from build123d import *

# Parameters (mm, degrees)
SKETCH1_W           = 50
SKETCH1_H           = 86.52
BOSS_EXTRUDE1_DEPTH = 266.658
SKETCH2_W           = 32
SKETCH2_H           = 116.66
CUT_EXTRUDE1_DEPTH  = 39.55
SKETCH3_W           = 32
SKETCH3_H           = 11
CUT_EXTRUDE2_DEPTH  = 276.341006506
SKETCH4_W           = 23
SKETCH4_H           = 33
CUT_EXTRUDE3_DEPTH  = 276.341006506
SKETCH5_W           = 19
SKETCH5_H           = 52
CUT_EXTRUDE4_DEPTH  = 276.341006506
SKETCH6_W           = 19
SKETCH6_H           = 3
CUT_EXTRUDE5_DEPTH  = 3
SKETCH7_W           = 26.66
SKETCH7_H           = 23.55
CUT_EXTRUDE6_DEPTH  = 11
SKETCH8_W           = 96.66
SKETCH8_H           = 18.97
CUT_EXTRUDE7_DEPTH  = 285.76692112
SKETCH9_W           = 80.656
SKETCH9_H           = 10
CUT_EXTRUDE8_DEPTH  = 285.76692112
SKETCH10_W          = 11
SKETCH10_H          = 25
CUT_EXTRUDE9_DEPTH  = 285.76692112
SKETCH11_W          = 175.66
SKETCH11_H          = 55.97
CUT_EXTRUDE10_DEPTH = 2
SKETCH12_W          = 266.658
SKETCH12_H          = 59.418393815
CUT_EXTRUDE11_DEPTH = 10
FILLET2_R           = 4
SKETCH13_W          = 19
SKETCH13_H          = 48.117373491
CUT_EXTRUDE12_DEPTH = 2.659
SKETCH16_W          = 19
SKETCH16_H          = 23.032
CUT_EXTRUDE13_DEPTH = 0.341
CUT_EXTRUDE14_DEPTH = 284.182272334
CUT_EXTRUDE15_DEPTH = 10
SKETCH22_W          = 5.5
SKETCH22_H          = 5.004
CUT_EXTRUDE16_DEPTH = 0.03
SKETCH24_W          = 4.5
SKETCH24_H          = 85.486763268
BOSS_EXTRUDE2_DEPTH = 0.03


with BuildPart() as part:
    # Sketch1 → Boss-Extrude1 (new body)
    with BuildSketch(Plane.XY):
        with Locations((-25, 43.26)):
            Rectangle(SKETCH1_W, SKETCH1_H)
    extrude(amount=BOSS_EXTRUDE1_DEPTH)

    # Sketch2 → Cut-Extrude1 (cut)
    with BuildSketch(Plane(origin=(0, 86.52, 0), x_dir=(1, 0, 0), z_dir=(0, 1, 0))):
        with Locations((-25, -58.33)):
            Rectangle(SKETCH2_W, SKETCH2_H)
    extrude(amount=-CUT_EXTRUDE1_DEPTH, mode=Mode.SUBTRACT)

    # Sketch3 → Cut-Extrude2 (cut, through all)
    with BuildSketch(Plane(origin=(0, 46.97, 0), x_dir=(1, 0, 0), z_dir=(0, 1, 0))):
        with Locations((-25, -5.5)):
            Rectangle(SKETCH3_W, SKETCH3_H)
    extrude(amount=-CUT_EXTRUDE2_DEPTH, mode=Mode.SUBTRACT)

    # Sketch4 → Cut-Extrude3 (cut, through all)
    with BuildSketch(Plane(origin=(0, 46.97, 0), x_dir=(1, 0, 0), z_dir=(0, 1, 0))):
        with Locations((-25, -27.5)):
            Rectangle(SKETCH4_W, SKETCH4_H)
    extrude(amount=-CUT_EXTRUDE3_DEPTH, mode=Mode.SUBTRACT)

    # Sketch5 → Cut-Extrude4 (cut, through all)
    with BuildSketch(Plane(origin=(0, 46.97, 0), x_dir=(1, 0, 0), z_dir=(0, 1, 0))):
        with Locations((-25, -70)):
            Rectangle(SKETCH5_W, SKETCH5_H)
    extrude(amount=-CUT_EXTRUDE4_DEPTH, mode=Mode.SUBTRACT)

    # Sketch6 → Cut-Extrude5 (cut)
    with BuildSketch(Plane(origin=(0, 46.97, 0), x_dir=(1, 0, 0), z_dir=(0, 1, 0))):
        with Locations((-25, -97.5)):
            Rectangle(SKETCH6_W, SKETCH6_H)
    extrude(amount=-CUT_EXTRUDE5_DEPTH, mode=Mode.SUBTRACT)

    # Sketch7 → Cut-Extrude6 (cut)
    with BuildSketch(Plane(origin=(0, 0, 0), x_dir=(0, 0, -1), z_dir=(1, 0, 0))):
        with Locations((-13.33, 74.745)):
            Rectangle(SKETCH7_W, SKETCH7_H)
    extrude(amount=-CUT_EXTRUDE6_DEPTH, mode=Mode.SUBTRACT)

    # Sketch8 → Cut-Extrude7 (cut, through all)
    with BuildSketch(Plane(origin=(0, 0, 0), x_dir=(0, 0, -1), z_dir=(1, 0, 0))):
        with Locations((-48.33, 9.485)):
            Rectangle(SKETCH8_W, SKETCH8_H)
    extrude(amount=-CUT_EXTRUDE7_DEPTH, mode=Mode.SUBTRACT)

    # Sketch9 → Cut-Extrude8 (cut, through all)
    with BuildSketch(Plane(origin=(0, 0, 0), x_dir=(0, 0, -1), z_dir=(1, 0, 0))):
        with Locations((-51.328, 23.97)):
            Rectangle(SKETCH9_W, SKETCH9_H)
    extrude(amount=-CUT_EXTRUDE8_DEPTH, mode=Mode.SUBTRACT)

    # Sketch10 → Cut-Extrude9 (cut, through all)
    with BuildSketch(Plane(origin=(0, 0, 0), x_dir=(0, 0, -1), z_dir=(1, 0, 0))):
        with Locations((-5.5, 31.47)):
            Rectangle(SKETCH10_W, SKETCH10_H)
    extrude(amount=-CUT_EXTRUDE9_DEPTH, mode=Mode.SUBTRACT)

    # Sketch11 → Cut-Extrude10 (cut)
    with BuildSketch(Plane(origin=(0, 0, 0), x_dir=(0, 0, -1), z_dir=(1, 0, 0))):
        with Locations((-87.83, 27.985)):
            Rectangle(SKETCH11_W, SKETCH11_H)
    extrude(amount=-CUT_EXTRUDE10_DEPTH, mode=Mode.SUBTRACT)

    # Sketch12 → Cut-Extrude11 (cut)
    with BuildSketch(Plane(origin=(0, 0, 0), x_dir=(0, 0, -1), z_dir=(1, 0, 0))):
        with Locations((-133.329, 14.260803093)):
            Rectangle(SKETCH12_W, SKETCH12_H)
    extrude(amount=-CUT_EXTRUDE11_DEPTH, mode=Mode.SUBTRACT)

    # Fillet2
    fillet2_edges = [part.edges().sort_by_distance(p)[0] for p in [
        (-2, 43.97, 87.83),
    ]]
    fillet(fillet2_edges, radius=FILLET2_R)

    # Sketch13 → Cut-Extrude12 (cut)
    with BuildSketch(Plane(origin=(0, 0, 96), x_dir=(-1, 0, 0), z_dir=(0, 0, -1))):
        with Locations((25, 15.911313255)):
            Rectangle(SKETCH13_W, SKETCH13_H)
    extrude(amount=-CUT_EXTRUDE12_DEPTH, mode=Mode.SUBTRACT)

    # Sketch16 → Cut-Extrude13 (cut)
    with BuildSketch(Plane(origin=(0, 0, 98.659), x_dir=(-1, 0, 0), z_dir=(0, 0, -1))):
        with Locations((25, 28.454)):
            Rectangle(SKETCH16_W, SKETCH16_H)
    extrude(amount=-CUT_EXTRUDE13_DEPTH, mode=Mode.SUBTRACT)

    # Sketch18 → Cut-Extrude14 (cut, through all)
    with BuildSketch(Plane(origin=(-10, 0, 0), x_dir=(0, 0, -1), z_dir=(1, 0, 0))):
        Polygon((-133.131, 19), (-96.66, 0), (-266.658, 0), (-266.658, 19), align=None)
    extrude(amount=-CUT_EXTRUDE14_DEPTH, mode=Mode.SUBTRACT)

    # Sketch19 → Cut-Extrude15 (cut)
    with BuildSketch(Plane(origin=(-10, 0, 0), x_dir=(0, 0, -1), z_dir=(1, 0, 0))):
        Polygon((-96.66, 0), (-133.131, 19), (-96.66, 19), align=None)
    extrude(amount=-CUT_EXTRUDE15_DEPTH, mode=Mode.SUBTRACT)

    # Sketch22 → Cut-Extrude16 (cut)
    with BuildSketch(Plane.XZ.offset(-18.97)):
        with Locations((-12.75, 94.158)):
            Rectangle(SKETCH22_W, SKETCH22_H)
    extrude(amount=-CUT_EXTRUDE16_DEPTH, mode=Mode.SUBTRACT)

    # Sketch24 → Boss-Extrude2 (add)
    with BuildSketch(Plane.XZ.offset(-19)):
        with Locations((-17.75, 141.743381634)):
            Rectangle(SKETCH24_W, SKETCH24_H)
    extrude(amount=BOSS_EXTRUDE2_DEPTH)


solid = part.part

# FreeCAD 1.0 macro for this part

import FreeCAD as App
import Part
import Sketcher
from FreeCAD import Vector


def edges_at(feature, points):
    """Names of the edges that pass closest to the given points."""
    edges = feature.Shape.Edges
    near = lambda p: min(range(len(edges)), key=lambda i: edges[i].distToShape(Part.Vertex(*p))[0])
    return sorted({f"Edge{near(p) + 1}" for p in points})


def add_polygon(sketch, points):
    """Adds a closed chain of lines whose ends are joined by coincident constraints."""
    first, n = sketch.GeometryCount, len(points)
    for a, b in zip(points, points[1:] + points[:1]):
        sketch.addGeometry(Part.LineSegment(App.Vector(*a, 0), App.Vector(*b, 0)), False)
    for i in range(n):
        sketch.addConstraint(Sketcher.Constraint("Coincident", first + i, 2, first + (i + 1) % n, 1))

doc = App.newDocument("Part")
body = doc.addObject("PartDesign::Body", "Body")

# Sketch on XY plane
sketch1 = body.newObject("Sketcher::SketchObject", "Sketch")
sketch1.AttachmentSupport = (doc.getObject("XY_Plane"), [""])
sketch1.MapMode = "FlatFace"
add_polygon(sketch1, [(-50, 87), (-50, 0), (0, 0), (0, 87)])  # lines 0-3
sketch1.addConstraint(Sketcher.Constraint("Vertical", 0))
sketch1.addConstraint(Sketcher.Constraint("Horizontal", 1))
sketch1.addConstraint(Sketcher.Constraint("Vertical", 2))
sketch1.addConstraint(Sketcher.Constraint("Horizontal", 3))
sketch1.addConstraint(Sketcher.Constraint("Coincident", 1, 2, -1, 1))
sketch1.addConstraint(Sketcher.Constraint("DistanceX", 1, 1, 1, 2, 50.0))
sketch1.addConstraint(Sketcher.Constraint("DistanceY", 0, 2, 0, 1, 86.52))
pad1 = body.newObject("PartDesign::Pad", "Pad")
pad1.Profile = sketch1
pad1.Length = 266.658

# Sketch on XZ plane
sketch2 = body.newObject("Sketcher::SketchObject", "Sketch001")
sketch2.AttachmentSupport = (doc.getObject("XZ_Plane"), [""])
sketch2.MapMode = "FlatFace"
sketch2.AttachmentOffset = App.Placement(Vector(0, 0, -86.52), App.Rotation())
add_polygon(sketch2, [(-41, 0), (-41, 117), (-9, 117), (-9, 0)])  # lines 0-3
sketch2.addConstraint(Sketcher.Constraint("Vertical", 0))
sketch2.addConstraint(Sketcher.Constraint("Horizontal", 1))
sketch2.addConstraint(Sketcher.Constraint("Vertical", 2))
sketch2.addConstraint(Sketcher.Constraint("Horizontal", 3))
sketch2.addConstraint(Sketcher.Constraint("PointOnObject", 2, 2, -1))
sketch2.addConstraint(Sketcher.Constraint("DistanceX", 1, 1, 1, 2, 32.0))
sketch2.addConstraint(Sketcher.Constraint("DistanceX", 0, 2, -1, 1, 41.0))
sketch2.addConstraint(Sketcher.Constraint("DistanceY", 0, 1, 0, 2, 116.66))
pocket1 = body.newObject("PartDesign::Pocket", "Pocket")
pocket1.Profile = sketch2
pocket1.Length = 39.55
pocket1.Reversed = True

# Sketch on XZ plane
sketch3 = body.newObject("Sketcher::SketchObject", "Sketch002")
sketch3.AttachmentSupport = (doc.getObject("XZ_Plane"), [""])
sketch3.MapMode = "FlatFace"
sketch3.AttachmentOffset = App.Placement(Vector(0, 0, -46.97), App.Rotation())
add_polygon(sketch3, [(-41, 0), (-41, 11), (-9, 11), (-9, 0)])  # lines 0-3
sketch3.addConstraint(Sketcher.Constraint("Vertical", 0))
sketch3.addConstraint(Sketcher.Constraint("Horizontal", 1))
sketch3.addConstraint(Sketcher.Constraint("Vertical", 2))
sketch3.addConstraint(Sketcher.Constraint("Horizontal", 3))
sketch3.addConstraint(Sketcher.Constraint("PointOnObject", 2, 2, -1))
sketch3.addConstraint(Sketcher.Constraint("DistanceX", 1, 1, 1, 2, 32.0))
sketch3.addConstraint(Sketcher.Constraint("DistanceY", 0, 1, 0, 2, 11.0))
sketch3.addConstraint(Sketcher.Constraint("DistanceX", 0, 2, -1, 1, 41.0))
pocket2 = body.newObject("PartDesign::Pocket", "Pocket001")
pocket2.Profile = sketch3
pocket2.Type = "ThroughAll"
pocket2.Reversed = True

# Sketch on XZ plane
sketch4 = body.newObject("Sketcher::SketchObject", "Sketch003")
sketch4.AttachmentSupport = (doc.getObject("XZ_Plane"), [""])
sketch4.MapMode = "FlatFace"
sketch4.AttachmentOffset = App.Placement(Vector(0, 0, -46.97), App.Rotation())
add_polygon(sketch4, [(-36, 11), (-36, 44), (-14, 44), (-14, 11)])  # lines 0-3
sketch4.addConstraint(Sketcher.Constraint("Vertical", 0))
sketch4.addConstraint(Sketcher.Constraint("Horizontal", 1))
sketch4.addConstraint(Sketcher.Constraint("Vertical", 2))
sketch4.addConstraint(Sketcher.Constraint("Horizontal", 3))
sketch4.addConstraint(Sketcher.Constraint("DistanceX", 1, 1, 1, 2, 23.0))
sketch4.addConstraint(Sketcher.Constraint("DistanceY", 0, 1, 0, 2, 33.0))
sketch4.addConstraint(Sketcher.Constraint("DistanceY", -1, 1, 0, 2, 44.0))
sketch4.addConstraint(Sketcher.Constraint("DistanceX", 0, 2, -1, 1, 36.5))
pocket3 = body.newObject("PartDesign::Pocket", "Pocket002")
pocket3.Profile = sketch4
pocket3.Type = "ThroughAll"
pocket3.Reversed = True

# Sketch on XZ plane
sketch5 = body.newObject("Sketcher::SketchObject", "Sketch004")
sketch5.AttachmentSupport = (doc.getObject("XZ_Plane"), [""])
sketch5.MapMode = "FlatFace"
sketch5.AttachmentOffset = App.Placement(Vector(0, 0, -46.97), App.Rotation())
add_polygon(sketch5, [(-34, 44), (-34, 96), (-16, 96), (-16, 44)])  # lines 0-3
sketch5.addConstraint(Sketcher.Constraint("Vertical", 0))
sketch5.addConstraint(Sketcher.Constraint("Horizontal", 1))
sketch5.addConstraint(Sketcher.Constraint("Vertical", 2))
sketch5.addConstraint(Sketcher.Constraint("Horizontal", 3))
sketch5.addConstraint(Sketcher.Constraint("DistanceX", 1, 1, 1, 2, 19.0))
sketch5.addConstraint(Sketcher.Constraint("DistanceY", 0, 1, 0, 2, 52.0))
sketch5.addConstraint(Sketcher.Constraint("DistanceY", -1, 1, 0, 2, 96.0))
sketch5.addConstraint(Sketcher.Constraint("DistanceX", 0, 2, -1, 1, 34.5))
pocket4 = body.newObject("PartDesign::Pocket", "Pocket003")
pocket4.Profile = sketch5
pocket4.Type = "ThroughAll"
pocket4.Reversed = True

# Sketch on XZ plane
sketch6 = body.newObject("Sketcher::SketchObject", "Sketch005")
sketch6.AttachmentSupport = (doc.getObject("XZ_Plane"), [""])
sketch6.MapMode = "FlatFace"
sketch6.AttachmentOffset = App.Placement(Vector(0, 0, -46.97), App.Rotation())
add_polygon(sketch6, [(-34.5, 96), (-34.5, 99), (-15.5, 99), (-15.5, 96)])  # lines 0-3
sketch6.addConstraint(Sketcher.Constraint("Vertical", 0))
sketch6.addConstraint(Sketcher.Constraint("Horizontal", 1))
sketch6.addConstraint(Sketcher.Constraint("Vertical", 2))
sketch6.addConstraint(Sketcher.Constraint("Horizontal", 3))
sketch6.addConstraint(Sketcher.Constraint("DistanceX", 1, 1, 1, 2, 19.0))
sketch6.addConstraint(Sketcher.Constraint("DistanceY", 0, 1, 0, 2, 3.0))
sketch6.addConstraint(Sketcher.Constraint("DistanceY", -1, 1, 0, 2, 99.0))
sketch6.addConstraint(Sketcher.Constraint("DistanceX", 0, 2, -1, 1, 34.5))
pocket5 = body.newObject("PartDesign::Pocket", "Pocket004")
pocket5.Profile = sketch6
pocket5.Length = 3
pocket5.Reversed = True

# Sketch on YZ plane
sketch7 = body.newObject("Sketcher::SketchObject", "Sketch006")
sketch7.AttachmentSupport = (doc.getObject("YZ_Plane"), [""])
sketch7.MapMode = "FlatFace"
add_polygon(sketch7, [(87, 27), (63, 27), (63, 0), (87, 0)])  # lines 0-3
sketch7.addConstraint(Sketcher.Constraint("Horizontal", 0))
sketch7.addConstraint(Sketcher.Constraint("Vertical", 1))
sketch7.addConstraint(Sketcher.Constraint("Horizontal", 2))
sketch7.addConstraint(Sketcher.Constraint("Vertical", 3))
sketch7.addConstraint(Sketcher.Constraint("PointOnObject", 1, 2, -1))
sketch7.addConstraint(Sketcher.Constraint("DistanceX", 0, 2, 0, 1, 23.55))
sketch7.addConstraint(Sketcher.Constraint("DistanceY", 1, 2, 1, 1, 26.66))
sketch7.addConstraint(Sketcher.Constraint("DistanceX", -1, 1, 0, 2, 62.97))
pocket6 = body.newObject("PartDesign::Pocket", "Pocket005")
pocket6.Profile = sketch7
pocket6.Length = 11

# Sketch on YZ plane
sketch8 = body.newObject("Sketcher::SketchObject", "Sketch007")
sketch8.AttachmentSupport = (doc.getObject("YZ_Plane"), [""])
sketch8.MapMode = "FlatFace"
add_polygon(sketch8, [(19, 97), (0, 97), (0, 0), (19, 0)])  # lines 0-3
sketch8.addConstraint(Sketcher.Constraint("Horizontal", 0))
sketch8.addConstraint(Sketcher.Constraint("Vertical", 1))
sketch8.addConstraint(Sketcher.Constraint("Horizontal", 2))
sketch8.addConstraint(Sketcher.Constraint("Vertical", 3))
sketch8.addConstraint(Sketcher.Constraint("Coincident", 1, 2, -1, 1))
sketch8.addConstraint(Sketcher.Constraint("DistanceX", 0, 2, 0, 1, 18.97))
sketch8.addConstraint(Sketcher.Constraint("DistanceY", 1, 2, 1, 1, 96.66))
pocket7 = body.newObject("PartDesign::Pocket", "Pocket006")
pocket7.Profile = sketch8
pocket7.Type = "ThroughAll"

# Sketch on YZ plane
sketch9 = body.newObject("Sketcher::SketchObject", "Sketch008")
sketch9.AttachmentSupport = (doc.getObject("YZ_Plane"), [""])
sketch9.MapMode = "FlatFace"
add_polygon(sketch9, [(29, 92), (19, 92), (19, 11), (29, 11)])  # lines 0-3
sketch9.addConstraint(Sketcher.Constraint("Horizontal", 0))
sketch9.addConstraint(Sketcher.Constraint("Vertical", 1))
sketch9.addConstraint(Sketcher.Constraint("Horizontal", 2))
sketch9.addConstraint(Sketcher.Constraint("Vertical", 3))
sketch9.addConstraint(Sketcher.Constraint("DistanceX", 0, 2, 0, 1, 10.0))
sketch9.addConstraint(Sketcher.Constraint("DistanceY", -1, 1, 1, 2, 11.0))
sketch9.addConstraint(Sketcher.Constraint("DistanceY", 1, 2, 1, 1, 80.656))
sketch9.addConstraint(Sketcher.Constraint("DistanceX", -1, 1, 0, 2, 18.97))
pocket8 = body.newObject("PartDesign::Pocket", "Pocket007")
pocket8.Profile = sketch9
pocket8.Type = "ThroughAll"

# Sketch on YZ plane
sketch10 = body.newObject("Sketcher::SketchObject", "Sketch009")
sketch10.AttachmentSupport = (doc.getObject("YZ_Plane"), [""])
sketch10.MapMode = "FlatFace"
add_polygon(sketch10, [(44, 11), (19, 11), (19, 0), (44, 0)])  # lines 0-3
sketch10.addConstraint(Sketcher.Constraint("Horizontal", 0))
sketch10.addConstraint(Sketcher.Constraint("Vertical", 1))
sketch10.addConstraint(Sketcher.Constraint("Horizontal", 2))
sketch10.addConstraint(Sketcher.Constraint("Vertical", 3))
sketch10.addConstraint(Sketcher.Constraint("PointOnObject", 1, 2, -1))
sketch10.addConstraint(Sketcher.Constraint("DistanceX", 0, 2, 0, 1, 25.0))
sketch10.addConstraint(Sketcher.Constraint("DistanceY", 1, 2, 1, 1, 11.0))
sketch10.addConstraint(Sketcher.Constraint("DistanceX", -1, 1, 0, 2, 18.97))
pocket9 = body.newObject("PartDesign::Pocket", "Pocket008")
pocket9.Profile = sketch10
pocket9.Type = "ThroughAll"

# Sketch on YZ plane
sketch11 = body.newObject("Sketcher::SketchObject", "Sketch010")
sketch11.AttachmentSupport = (doc.getObject("YZ_Plane"), [""])
sketch11.MapMode = "FlatFace"
add_polygon(sketch11, [(56, 176), (0, 176), (0, 0), (56, 0)])  # lines 0-3
sketch11.addConstraint(Sketcher.Constraint("Horizontal", 0))
sketch11.addConstraint(Sketcher.Constraint("Vertical", 1))
sketch11.addConstraint(Sketcher.Constraint("Horizontal", 2))
sketch11.addConstraint(Sketcher.Constraint("Vertical", 3))
sketch11.addConstraint(Sketcher.Constraint("Coincident", 1, 2, -1, 1))
sketch11.addConstraint(Sketcher.Constraint("DistanceX", 0, 2, 0, 1, 55.97))
sketch11.addConstraint(Sketcher.Constraint("DistanceY", 1, 2, 1, 1, 175.66))
pocket10 = body.newObject("PartDesign::Pocket", "Pocket009")
pocket10.Profile = sketch11
pocket10.Length = 2

# Sketch on YZ plane
sketch12 = body.newObject("Sketcher::SketchObject", "Sketch011")
sketch12.AttachmentSupport = (doc.getObject("YZ_Plane"), [""])
sketch12.MapMode = "FlatFace"
add_polygon(sketch12, [(44, 267), (-15, 267), (-15, 0), (44, 0)])  # lines 0-3
sketch12.addConstraint(Sketcher.Constraint("Horizontal", 0))
sketch12.addConstraint(Sketcher.Constraint("Vertical", 1))
sketch12.addConstraint(Sketcher.Constraint("Horizontal", 2))
sketch12.addConstraint(Sketcher.Constraint("Vertical", 3))
sketch12.addConstraint(Sketcher.Constraint("PointOnObject", 1, 2, -1))
sketch12.addConstraint(Sketcher.Constraint("DistanceY", 1, 2, 1, 1, 266.658))
sketch12.addConstraint(Sketcher.Constraint("DistanceX", -1, 1, 2, 2, 43.97))
sketch12.addConstraint(Sketcher.Constraint("DistanceX", 0, 2, 0, 1, 59.418394))
pocket11 = body.newObject("PartDesign::Pocket", "Pocket010")
pocket11.Profile = sketch12
pocket11.Length = 10
doc.recompute()

fillet = body.newObject("PartDesign::Fillet", "Fillet")
fillet.Base = (pocket11, edges_at(pocket11, [(-2, 43.97, 93.33)]))
fillet.Radius = 4

# Sketch on XY plane
sketch13 = body.newObject("Sketcher::SketchObject", "Sketch012")
sketch13.AttachmentSupport = (doc.getObject("XY_Plane"), [""])
sketch13.MapMode = "FlatFace"
sketch13.AttachmentOffset = App.Placement(Vector(0, 0, 96), App.Rotation())
add_polygon(sketch13, [(-16, 40), (-16, -8), (-34, -8), (-34, 40)])  # lines 0-3
sketch13.addConstraint(Sketcher.Constraint("Vertical", 0))
sketch13.addConstraint(Sketcher.Constraint("Horizontal", 1))
sketch13.addConstraint(Sketcher.Constraint("Vertical", 2))
sketch13.addConstraint(Sketcher.Constraint("Horizontal", 3))
sketch13.addConstraint(Sketcher.Constraint("DistanceX", 1, 2, 1, 1, 19.0))
sketch13.addConstraint(Sketcher.Constraint("DistanceX", 0, 2, -1, 1, 15.5))
sketch13.addConstraint(Sketcher.Constraint("DistanceY", -1, 1, 2, 2, 39.97))
sketch13.addConstraint(Sketcher.Constraint("DistanceY", 0, 2, 0, 1, 48.117373))
pocket12 = body.newObject("PartDesign::Pocket", "Pocket011")
pocket12.Profile = sketch13
pocket12.Length = 2.659
pocket12.Reversed = True

# Sketch on XY plane
sketch14 = body.newObject("Sketcher::SketchObject", "Sketch013")
sketch14.AttachmentSupport = (doc.getObject("XY_Plane"), [""])
sketch14.MapMode = "FlatFace"
sketch14.AttachmentOffset = App.Placement(Vector(0, 0, 98.659), App.Rotation())
add_polygon(sketch14, [(-16, 40), (-16, 17), (-34, 17), (-34, 40)])  # lines 0-3
sketch14.addConstraint(Sketcher.Constraint("Vertical", 0))
sketch14.addConstraint(Sketcher.Constraint("Horizontal", 1))
sketch14.addConstraint(Sketcher.Constraint("Vertical", 2))
sketch14.addConstraint(Sketcher.Constraint("Horizontal", 3))
sketch14.addConstraint(Sketcher.Constraint("DistanceX", 1, 2, 1, 1, 19.0))
sketch14.addConstraint(Sketcher.Constraint("DistanceX", 0, 2, -1, 1, 15.5))
sketch14.addConstraint(Sketcher.Constraint("DistanceY", 0, 2, 0, 1, 23.032))
sketch14.addConstraint(Sketcher.Constraint("DistanceY", -1, 1, 2, 2, 39.97))
pocket13 = body.newObject("PartDesign::Pocket", "Pocket012")
pocket13.Profile = sketch14
pocket13.Length = 0.341
pocket13.Reversed = True

# Sketch on YZ plane
sketch15 = body.newObject("Sketcher::SketchObject", "Sketch014")
sketch15.AttachmentSupport = (doc.getObject("YZ_Plane"), [""])
sketch15.MapMode = "FlatFace"
sketch15.AttachmentOffset = App.Placement(Vector(0, 0, -10), App.Rotation())
add_polygon(sketch15, [(0, 97), (19, 133), (19, 267), (0, 267)])  # lines 0-3
sketch15.addConstraint(Sketcher.Constraint("Vertical", 1))
sketch15.addConstraint(Sketcher.Constraint("Horizontal", 2))
sketch15.addConstraint(Sketcher.Constraint("Vertical", 3))
sketch15.addConstraint(Sketcher.Constraint("PointOnObject", 2, 2, -2))
sketch15.addConstraint(Sketcher.Constraint("DistanceX", 2, 2, 2, 1, 19.0))
sketch15.addConstraint(Sketcher.Constraint("DistanceY", 1, 1, 1, 2, 133.527))
sketch15.addConstraint(Sketcher.Constraint("DistanceY", 3, 2, 3, 1, 169.998))
sketch15.addConstraint(Sketcher.Constraint("DistanceY", -1, 1, 3, 2, 96.66))
pocket14 = body.newObject("PartDesign::Pocket", "Pocket013")
pocket14.Profile = sketch15
pocket14.Type = "ThroughAll"

# Sketch on YZ plane
sketch16 = body.newObject("Sketcher::SketchObject", "Sketch015")
sketch16.AttachmentSupport = (doc.getObject("YZ_Plane"), [""])
sketch16.MapMode = "FlatFace"
sketch16.AttachmentOffset = App.Placement(Vector(0, 0, -10), App.Rotation())
add_polygon(sketch16, [(19, 133), (0, 97), (19, 97)])  # lines 0-2
sketch16.addConstraint(Sketcher.Constraint("Horizontal", 1))
sketch16.addConstraint(Sketcher.Constraint("Vertical", 2))
sketch16.addConstraint(Sketcher.Constraint("PointOnObject", 0, 2, -2))
sketch16.addConstraint(Sketcher.Constraint("DistanceX", 1, 1, 1, 2, 19.0))
sketch16.addConstraint(Sketcher.Constraint("DistanceY", 2, 1, 2, 2, 36.471))
sketch16.addConstraint(Sketcher.Constraint("DistanceY", -1, 1, 0, 2, 96.66))
pocket15 = body.newObject("PartDesign::Pocket", "Pocket014")
pocket15.Profile = sketch16
pocket15.Length = 10

# Sketch on XZ plane
sketch17 = body.newObject("Sketcher::SketchObject", "Sketch016")
sketch17.AttachmentSupport = (doc.getObject("XZ_Plane"), [""])
sketch17.MapMode = "FlatFace"
sketch17.AttachmentOffset = App.Placement(Vector(0, 0, -18.97), App.Rotation())
add_polygon(sketch17, [(-16, 97), (-16, 92), (-10, 92), (-10, 97)])  # lines 0-3
sketch17.addConstraint(Sketcher.Constraint("Vertical", 0))
sketch17.addConstraint(Sketcher.Constraint("Horizontal", 1))
sketch17.addConstraint(Sketcher.Constraint("Vertical", 2))
sketch17.addConstraint(Sketcher.Constraint("Horizontal", 3))
sketch17.addConstraint(Sketcher.Constraint("DistanceX", 1, 1, 1, 2, 5.5))
sketch17.addConstraint(Sketcher.Constraint("DistanceX", 1, 2, -1, 1, 10.0))
sketch17.addConstraint(Sketcher.Constraint("DistanceY", 0, 2, 0, 1, 5.004))
sketch17.addConstraint(Sketcher.Constraint("DistanceY", -1, 1, 2, 2, 96.66))
pocket16 = body.newObject("PartDesign::Pocket", "Pocket015")
pocket16.Profile = sketch17
pocket16.Length = 0.03

# Sketch on XZ plane
sketch18 = body.newObject("Sketcher::SketchObject", "Sketch017")
sketch18.AttachmentSupport = (doc.getObject("XZ_Plane"), [""])
sketch18.MapMode = "FlatFace"
sketch18.AttachmentOffset = App.Placement(Vector(0, 0, -19), App.Rotation())
add_polygon(sketch18, [(-20, 184.5), (-20, 99), (-15.5, 99), (-15.5, 184.5)])  # lines 0-3
sketch18.addConstraint(Sketcher.Constraint("Vertical", 0))
sketch18.addConstraint(Sketcher.Constraint("Horizontal", 1))
sketch18.addConstraint(Sketcher.Constraint("Vertical", 2))
sketch18.addConstraint(Sketcher.Constraint("Horizontal", 3))
sketch18.addConstraint(Sketcher.Constraint("DistanceX", 1, 1, 1, 2, 4.5))
sketch18.addConstraint(Sketcher.Constraint("DistanceX", 0, 2, -1, 1, 20.0))
sketch18.addConstraint(Sketcher.Constraint("DistanceY", -1, 1, 0, 2, 99.0))
sketch18.addConstraint(Sketcher.Constraint("DistanceY", 0, 2, 0, 1, 85.486763))
pad2 = body.newObject("PartDesign::Pad", "Pad001")
pad2.Profile = sketch18
pad2.Length = 0.03

doc.recompute()
